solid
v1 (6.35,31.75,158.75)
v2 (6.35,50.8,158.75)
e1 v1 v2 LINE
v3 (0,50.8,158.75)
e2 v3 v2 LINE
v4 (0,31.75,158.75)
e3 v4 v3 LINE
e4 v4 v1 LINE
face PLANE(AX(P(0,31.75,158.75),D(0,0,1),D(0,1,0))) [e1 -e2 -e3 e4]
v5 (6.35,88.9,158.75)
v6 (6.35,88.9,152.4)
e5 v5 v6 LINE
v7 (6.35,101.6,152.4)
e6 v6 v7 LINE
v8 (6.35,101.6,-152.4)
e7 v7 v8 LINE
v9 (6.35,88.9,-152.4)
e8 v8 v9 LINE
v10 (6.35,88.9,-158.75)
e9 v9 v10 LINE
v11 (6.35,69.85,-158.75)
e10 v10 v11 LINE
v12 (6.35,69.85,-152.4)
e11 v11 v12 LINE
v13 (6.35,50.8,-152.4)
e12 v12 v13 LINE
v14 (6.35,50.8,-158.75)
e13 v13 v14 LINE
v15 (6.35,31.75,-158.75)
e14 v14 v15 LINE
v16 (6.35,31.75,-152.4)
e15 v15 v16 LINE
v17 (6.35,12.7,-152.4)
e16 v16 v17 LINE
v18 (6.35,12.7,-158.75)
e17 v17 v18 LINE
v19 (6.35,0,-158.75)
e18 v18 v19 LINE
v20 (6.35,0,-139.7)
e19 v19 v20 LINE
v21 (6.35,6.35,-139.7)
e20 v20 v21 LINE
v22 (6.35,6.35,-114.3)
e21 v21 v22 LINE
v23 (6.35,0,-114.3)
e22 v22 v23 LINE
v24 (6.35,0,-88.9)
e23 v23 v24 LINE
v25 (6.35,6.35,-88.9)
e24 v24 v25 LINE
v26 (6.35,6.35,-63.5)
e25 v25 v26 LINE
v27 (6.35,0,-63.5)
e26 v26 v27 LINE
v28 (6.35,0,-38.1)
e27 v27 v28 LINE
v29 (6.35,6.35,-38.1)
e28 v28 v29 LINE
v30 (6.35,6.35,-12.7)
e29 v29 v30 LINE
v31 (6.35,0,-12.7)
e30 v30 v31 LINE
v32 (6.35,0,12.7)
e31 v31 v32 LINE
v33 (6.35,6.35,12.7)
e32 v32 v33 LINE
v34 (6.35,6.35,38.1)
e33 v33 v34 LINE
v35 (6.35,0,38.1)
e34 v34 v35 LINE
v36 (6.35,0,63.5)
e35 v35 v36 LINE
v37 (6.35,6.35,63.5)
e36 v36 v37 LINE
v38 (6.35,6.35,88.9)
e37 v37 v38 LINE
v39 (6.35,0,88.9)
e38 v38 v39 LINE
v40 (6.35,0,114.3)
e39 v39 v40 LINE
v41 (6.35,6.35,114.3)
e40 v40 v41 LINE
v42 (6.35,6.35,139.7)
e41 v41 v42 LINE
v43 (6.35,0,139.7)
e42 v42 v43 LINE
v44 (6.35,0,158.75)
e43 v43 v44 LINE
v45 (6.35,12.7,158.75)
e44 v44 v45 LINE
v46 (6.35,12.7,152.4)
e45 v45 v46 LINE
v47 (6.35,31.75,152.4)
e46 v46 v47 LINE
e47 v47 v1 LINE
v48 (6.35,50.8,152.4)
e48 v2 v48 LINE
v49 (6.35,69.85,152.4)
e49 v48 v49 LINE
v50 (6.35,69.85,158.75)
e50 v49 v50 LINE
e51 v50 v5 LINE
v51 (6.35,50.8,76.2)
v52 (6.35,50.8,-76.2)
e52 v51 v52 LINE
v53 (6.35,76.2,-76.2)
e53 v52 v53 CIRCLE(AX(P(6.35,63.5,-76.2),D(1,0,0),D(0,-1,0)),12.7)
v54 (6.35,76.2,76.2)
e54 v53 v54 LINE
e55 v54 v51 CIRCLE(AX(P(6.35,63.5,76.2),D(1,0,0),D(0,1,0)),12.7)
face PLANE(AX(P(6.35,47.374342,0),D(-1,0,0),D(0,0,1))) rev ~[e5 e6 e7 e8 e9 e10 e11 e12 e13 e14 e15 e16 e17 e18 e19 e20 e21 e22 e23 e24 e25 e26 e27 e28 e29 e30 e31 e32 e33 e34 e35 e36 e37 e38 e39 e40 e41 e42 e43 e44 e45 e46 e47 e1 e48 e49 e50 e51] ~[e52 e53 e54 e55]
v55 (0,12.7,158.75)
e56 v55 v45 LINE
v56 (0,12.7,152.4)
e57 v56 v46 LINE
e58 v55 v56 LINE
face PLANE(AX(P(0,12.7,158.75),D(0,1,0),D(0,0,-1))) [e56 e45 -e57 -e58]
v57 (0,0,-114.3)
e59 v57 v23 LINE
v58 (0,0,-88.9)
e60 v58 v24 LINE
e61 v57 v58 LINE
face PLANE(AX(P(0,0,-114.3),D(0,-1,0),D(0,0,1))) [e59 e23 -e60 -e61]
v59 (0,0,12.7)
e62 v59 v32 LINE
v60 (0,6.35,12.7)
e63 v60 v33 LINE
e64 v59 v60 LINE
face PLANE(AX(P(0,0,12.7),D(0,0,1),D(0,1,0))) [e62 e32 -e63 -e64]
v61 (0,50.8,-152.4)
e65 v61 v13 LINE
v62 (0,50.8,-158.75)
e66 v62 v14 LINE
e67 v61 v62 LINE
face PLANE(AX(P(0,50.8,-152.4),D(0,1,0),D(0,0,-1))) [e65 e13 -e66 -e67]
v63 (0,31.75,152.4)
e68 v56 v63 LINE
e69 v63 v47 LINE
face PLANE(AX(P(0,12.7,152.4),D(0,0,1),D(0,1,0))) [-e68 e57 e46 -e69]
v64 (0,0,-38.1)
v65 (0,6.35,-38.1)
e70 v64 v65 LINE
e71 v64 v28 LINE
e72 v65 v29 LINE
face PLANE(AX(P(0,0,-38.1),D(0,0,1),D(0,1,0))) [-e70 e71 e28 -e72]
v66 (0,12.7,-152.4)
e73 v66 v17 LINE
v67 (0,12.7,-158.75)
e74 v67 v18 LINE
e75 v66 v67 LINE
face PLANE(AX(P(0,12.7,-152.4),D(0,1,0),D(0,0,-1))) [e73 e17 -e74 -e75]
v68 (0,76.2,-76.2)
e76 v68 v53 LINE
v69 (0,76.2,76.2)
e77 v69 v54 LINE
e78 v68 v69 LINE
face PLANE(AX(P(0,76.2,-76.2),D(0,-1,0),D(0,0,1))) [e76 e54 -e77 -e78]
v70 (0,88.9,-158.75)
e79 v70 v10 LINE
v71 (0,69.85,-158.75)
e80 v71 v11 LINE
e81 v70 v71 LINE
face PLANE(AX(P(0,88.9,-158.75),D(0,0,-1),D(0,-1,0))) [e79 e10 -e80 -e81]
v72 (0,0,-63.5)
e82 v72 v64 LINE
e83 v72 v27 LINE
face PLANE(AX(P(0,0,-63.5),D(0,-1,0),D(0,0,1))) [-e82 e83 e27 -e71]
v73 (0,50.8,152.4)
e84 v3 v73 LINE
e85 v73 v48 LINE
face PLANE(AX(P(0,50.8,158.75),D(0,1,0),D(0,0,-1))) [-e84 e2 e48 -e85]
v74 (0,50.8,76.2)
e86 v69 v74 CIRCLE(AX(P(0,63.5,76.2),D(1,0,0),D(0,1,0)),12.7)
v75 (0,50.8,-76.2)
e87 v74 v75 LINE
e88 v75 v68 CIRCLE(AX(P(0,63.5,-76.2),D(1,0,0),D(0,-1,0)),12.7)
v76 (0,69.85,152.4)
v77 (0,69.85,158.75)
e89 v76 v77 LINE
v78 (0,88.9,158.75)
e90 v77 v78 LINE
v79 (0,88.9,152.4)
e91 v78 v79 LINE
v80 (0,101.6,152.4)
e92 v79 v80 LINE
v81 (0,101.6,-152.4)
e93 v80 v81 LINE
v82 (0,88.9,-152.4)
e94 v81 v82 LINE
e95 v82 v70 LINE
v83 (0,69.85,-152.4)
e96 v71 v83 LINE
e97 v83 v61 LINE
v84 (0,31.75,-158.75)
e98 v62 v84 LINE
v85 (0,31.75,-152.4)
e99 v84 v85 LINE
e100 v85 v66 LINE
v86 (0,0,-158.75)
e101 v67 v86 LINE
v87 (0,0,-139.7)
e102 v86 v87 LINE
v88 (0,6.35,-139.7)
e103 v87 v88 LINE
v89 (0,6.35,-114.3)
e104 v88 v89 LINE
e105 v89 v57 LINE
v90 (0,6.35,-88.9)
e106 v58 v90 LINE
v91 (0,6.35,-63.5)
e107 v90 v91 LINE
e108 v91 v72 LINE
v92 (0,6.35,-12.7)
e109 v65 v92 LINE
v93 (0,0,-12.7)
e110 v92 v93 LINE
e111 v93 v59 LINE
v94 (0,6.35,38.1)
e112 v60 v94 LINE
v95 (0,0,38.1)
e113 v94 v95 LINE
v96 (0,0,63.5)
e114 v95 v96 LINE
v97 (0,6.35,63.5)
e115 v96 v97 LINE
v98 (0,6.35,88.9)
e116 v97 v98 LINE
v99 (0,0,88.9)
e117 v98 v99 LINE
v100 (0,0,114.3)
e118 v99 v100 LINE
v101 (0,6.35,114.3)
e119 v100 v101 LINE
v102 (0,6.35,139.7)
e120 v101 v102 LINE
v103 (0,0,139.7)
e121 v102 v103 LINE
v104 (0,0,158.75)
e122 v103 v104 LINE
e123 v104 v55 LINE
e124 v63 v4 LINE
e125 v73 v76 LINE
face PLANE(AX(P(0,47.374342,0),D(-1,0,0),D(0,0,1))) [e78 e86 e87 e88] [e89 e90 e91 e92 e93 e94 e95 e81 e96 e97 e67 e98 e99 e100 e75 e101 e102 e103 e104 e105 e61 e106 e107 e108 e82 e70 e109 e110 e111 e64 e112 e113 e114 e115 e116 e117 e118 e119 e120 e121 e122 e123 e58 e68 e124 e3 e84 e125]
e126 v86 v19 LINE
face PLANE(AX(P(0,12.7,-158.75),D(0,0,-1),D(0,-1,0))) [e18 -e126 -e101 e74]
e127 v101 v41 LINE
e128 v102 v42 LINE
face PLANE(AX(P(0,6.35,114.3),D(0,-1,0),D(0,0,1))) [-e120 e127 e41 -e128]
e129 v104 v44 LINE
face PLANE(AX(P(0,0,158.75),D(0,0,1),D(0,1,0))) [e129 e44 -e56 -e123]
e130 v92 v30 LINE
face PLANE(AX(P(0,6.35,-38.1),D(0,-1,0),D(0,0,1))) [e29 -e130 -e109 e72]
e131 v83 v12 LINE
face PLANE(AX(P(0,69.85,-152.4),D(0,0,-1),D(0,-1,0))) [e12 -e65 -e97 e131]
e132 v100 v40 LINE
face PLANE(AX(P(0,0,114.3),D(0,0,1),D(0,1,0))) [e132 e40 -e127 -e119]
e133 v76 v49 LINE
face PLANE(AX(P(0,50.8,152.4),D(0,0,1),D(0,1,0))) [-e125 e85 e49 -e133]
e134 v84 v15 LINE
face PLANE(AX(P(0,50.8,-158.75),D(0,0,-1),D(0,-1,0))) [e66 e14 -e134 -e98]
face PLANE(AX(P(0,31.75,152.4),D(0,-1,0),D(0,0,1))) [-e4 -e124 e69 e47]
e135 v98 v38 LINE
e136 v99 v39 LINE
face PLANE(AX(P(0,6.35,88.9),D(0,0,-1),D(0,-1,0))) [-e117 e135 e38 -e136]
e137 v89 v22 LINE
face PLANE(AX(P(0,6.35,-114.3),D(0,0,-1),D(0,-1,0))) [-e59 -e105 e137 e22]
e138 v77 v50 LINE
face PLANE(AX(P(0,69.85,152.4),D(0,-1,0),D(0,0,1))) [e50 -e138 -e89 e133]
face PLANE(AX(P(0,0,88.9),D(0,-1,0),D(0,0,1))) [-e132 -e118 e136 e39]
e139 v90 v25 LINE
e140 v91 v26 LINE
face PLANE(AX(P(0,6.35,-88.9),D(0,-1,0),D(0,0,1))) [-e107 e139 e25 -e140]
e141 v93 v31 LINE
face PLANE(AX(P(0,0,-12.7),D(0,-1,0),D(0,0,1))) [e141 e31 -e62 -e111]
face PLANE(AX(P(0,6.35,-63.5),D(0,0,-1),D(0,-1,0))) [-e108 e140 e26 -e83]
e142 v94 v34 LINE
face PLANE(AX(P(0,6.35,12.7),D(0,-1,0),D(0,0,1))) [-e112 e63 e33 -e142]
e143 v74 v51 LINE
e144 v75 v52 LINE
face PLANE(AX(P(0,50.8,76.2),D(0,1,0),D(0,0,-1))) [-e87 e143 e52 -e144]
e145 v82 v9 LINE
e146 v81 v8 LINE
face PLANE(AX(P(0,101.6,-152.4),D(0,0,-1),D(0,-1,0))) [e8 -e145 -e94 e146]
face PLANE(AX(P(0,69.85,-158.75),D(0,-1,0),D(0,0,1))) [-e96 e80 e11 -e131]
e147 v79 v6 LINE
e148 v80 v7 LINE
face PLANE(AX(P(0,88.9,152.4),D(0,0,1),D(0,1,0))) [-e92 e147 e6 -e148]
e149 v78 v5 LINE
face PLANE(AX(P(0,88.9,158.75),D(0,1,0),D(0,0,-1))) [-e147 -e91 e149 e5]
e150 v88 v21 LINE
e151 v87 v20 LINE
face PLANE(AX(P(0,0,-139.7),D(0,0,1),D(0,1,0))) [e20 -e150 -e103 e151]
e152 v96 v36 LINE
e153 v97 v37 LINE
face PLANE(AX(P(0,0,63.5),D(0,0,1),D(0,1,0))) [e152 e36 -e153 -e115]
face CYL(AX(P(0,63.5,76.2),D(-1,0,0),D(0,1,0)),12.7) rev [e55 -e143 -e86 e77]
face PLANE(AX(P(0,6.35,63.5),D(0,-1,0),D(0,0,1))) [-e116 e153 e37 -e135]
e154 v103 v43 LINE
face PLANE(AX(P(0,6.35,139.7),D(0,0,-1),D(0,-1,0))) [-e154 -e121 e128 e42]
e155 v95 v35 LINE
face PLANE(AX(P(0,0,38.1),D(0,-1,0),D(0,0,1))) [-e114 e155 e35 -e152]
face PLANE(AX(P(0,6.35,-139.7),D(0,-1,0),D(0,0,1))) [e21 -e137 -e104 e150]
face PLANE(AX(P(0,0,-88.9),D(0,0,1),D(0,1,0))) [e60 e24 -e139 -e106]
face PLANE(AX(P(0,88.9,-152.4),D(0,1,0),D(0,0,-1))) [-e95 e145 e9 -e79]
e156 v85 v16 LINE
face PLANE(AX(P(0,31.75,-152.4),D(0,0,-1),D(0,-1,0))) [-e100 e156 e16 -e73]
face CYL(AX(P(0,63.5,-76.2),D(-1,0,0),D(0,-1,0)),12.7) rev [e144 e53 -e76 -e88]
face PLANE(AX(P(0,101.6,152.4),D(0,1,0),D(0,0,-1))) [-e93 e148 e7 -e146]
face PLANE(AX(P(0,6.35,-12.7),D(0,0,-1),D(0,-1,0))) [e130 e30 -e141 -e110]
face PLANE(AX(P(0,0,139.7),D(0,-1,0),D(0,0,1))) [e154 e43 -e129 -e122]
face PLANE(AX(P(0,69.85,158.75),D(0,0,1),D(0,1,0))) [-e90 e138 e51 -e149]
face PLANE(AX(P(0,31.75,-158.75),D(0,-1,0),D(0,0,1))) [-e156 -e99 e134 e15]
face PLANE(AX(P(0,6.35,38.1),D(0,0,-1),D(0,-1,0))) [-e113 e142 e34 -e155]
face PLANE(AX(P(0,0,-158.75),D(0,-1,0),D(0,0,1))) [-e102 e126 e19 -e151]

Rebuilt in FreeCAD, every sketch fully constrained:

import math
import FreeCAD as App
import Part
import Sketcher

V = App.Vector
Q = App.Units.Quantity


def add_polygon(sketch, points):
    """Adds a closed chain of lines whose ends are joined by coincident constraints."""
    first, n = sketch.GeometryCount, len(points)
    for a, b in zip(points, points[1:] + points[:1]):
        sketch.addGeometry(Part.LineSegment(App.Vector(*a, 0), App.Vector(*b, 0)), False)
    for i in range(n):
        sketch.addConstraint(Sketcher.Constraint("Coincident", first + i, 2, first + (i + 1) % n, 1))

doc = App.newDocument("Part")
body = doc.addObject("PartDesign::Body", "Body")

sketch1 = body.newObject("Sketcher::SketchObject", "Sketch")
sketch1.AttachmentSupport = (doc.getObject("YZ_Plane"), [""])
sketch1.MapMode = "FlatFace"
add_polygon(sketch1, [(102, -152), (102, 152), (89, 152), (89, 159), (70, 159), (70, 152), (51, 152), (51, 159), (32, 159), (32, 152), (13, 152), (13, 159), (0, 159), (0, 140), (6, 140), (6, 114), (0, 114), (0, 89), (6, 89), (6, 64), (0, 64), (0, 38), (6, 38), (6, 13), (0, 13), (0, -13), (6, -13), (6, -38), (0, -38), (0, -64), (6, -64), (6, -89), (0, -89), (0, -114), (6, -114), (6, -140), (0, -140), (0, -159), (13, -159), (13, -152), (32, -152), (32, -159), (51, -159), (51, -152), (70, -152), (70, -159), (89, -159), (89, -152)])
sketch1.addGeometry(Part.ArcOfCircle(Part.Circle(V(64, 76, 0), V(0, 0, 1), 13), math.radians(0), math.radians(180)), False)
sketch1.addGeometry(Part.LineSegment(V(76, 76, 0), V(76, -76, 0)), False)
sketch1.addGeometry(Part.ArcOfCircle(Part.Circle(V(64, -76, 0), V(0, 0, 1), 13), math.radians(180), math.radians(360)), False)
sketch1.addGeometry(Part.LineSegment(V(51, -76, 0), V(51, 76, 0)), False)
sketch1.addConstraint([
    Sketcher.Constraint("Tangent", 48, 1, 49, 1),
    Sketcher.Constraint("Tangent", 49, 2, 50, 2),
    Sketcher.Constraint("Tangent", 50, 1, 51, 1),
    Sketcher.Constraint("Tangent", 51, 2, 48, 2),
    Sketcher.Constraint("Vertical", 0),
    Sketcher.Constraint("Horizontal", 1),
    Sketcher.Constraint("Vertical", 2),
    Sketcher.Constraint("Horizontal", 3),
    Sketcher.Constraint("Vertical", 4),
    Sketcher.Constraint("Horizontal", 5),
    Sketcher.Constraint("Vertical", 6),
    Sketcher.Constraint("Horizontal", 7),
    Sketcher.Constraint("Vertical", 8),
    Sketcher.Constraint("Horizontal", 9),
    Sketcher.Constraint("Vertical", 10),
    Sketcher.Constraint("Horizontal", 11),
    Sketcher.Constraint("Vertical", 12),
    Sketcher.Constraint("Horizontal", 13),
    Sketcher.Constraint("Vertical", 14),
    Sketcher.Constraint("Horizontal", 15),
    Sketcher.Constraint("Vertical", 16),
    Sketcher.Constraint("Horizontal", 17),
    Sketcher.Constraint("Vertical", 18),
    Sketcher.Constraint("Horizontal", 19),
    Sketcher.Constraint("Vertical", 20),
    Sketcher.Constraint("Horizontal", 21),
    Sketcher.Constraint("Vertical", 22),
    Sketcher.Constraint("Horizontal", 23),
    Sketcher.Constraint("Vertical", 24),
    Sketcher.Constraint("Horizontal", 25),
    Sketcher.Constraint("Vertical", 26),
    Sketcher.Constraint("Horizontal", 27),
    Sketcher.Constraint("Vertical", 28),
    Sketcher.Constraint("Horizontal", 29),
    Sketcher.Constraint("Vertical", 30),
    Sketcher.Constraint("Horizontal", 31),
    Sketcher.Constraint("Vertical", 32),
    Sketcher.Constraint("Horizontal", 33),
    Sketcher.Constraint("Vertical", 34),
    Sketcher.Constraint("Horizontal", 35),
    Sketcher.Constraint("Vertical", 36),
    Sketcher.Constraint("Horizontal", 37),
    Sketcher.Constraint("Vertical", 38),
    Sketcher.Constraint("Horizontal", 39),
    Sketcher.Constraint("Vertical", 40),
    Sketcher.Constraint("Horizontal", 41),
    Sketcher.Constraint("Vertical", 42),
    Sketcher.Constraint("Horizontal", 43),
    Sketcher.Constraint("Vertical", 44),
    Sketcher.Constraint("Horizontal", 45),
    Sketcher.Constraint("Vertical", 46),
    Sketcher.Constraint("Horizontal", 47),
    Sketcher.Constraint("Vertical", 49),
    Sketcher.Constraint("Vertical", 51),
    Sketcher.Constraint("Symmetric", 23, 2, 24, 2, -1, 1),
    Sketcher.Constraint("Symmetric", 20, 2, 27, 2, -1, 1),
    Sketcher.Constraint("Symmetric", 16, 2, 31, 2, -1, 1),
    Sketcher.Constraint("Symmetric", 12, 2, 35, 2, -1, 1),
    Sketcher.Constraint("Symmetric", 19, 2, 28, 2, -1),
    Sketcher.Constraint("Symmetric", 15, 2, 32, 2, -1),
    Sketcher.Constraint("Symmetric", 11, 2, 36, 2, -1),
    Sketcher.Constraint("Symmetric", 9, 2, 38, 2, -1),
    Sketcher.Constraint("Symmetric", 7, 2, 40, 2, -1),
    Sketcher.Constraint("Symmetric", 5, 2, 42, 2, -1),
    Sketcher.Constraint("Symmetric", 3, 2, 44, 2, -1),
    Sketcher.Constraint("Symmetric", 1, 2, 46, 2, -1),
    Sketcher.Constraint("Horizontal", 1, 2, 4, 2),
    Sketcher.Constraint("Horizontal", 3, 2, 6, 2),
    Sketcher.Constraint("Horizontal", 5, 2, 8, 2),
    Sketcher.Constraint("Horizontal", 7, 2, 10, 2),
    Sketcher.Constraint("Vertical", 14, 2, 17, 2),
    Sketcher.Constraint("Vertical", 18, 2, 21, 2),
    Sketcher.Constraint("Vertical", 22, 2, 25, 2),
    Sketcher.Constraint("Vertical", 26, 2, 29, 2),
    Sketcher.Constraint("Vertical", 30, 2, 33, 2),
    Sketcher.Constraint("Vertical", 42, 2, 50, 1),
    Sketcher.Constraint("Equal", 3, 5),
    Sketcher.Constraint("Equal", 5, 7),
    Sketcher.Constraint("Equal", 7, 9),
    Sketcher.Constraint("Equal", 1, 11),
    Sketcher.Constraint("Equal", 35, 2),
    Sketcher.Constraint("Equal", 45, 12),
    Sketcher.Constraint("Equal", 14, 16),
    Sketcher.Constraint("Equal", 16, 18),
    Sketcher.Constraint("Equal", 18, 20),
    Sketcher.Constraint("Equal", 20, 22),
    Sketcher.Constraint("Equal", 22, 24),
    Sketcher.Constraint("Radius", 48, Q("0.5 in")),
    Sketcher.Constraint("DistanceY", 0, 1, 0, 2, Q("12 in")),
    Sketcher.Constraint("DistanceY", 14, 2, 14, 1, Q("1 in")),
    Sketcher.Constraint("DistanceY", 49, 2, 49, 1, Q("6 in")),
    Sketcher.Constraint("DistanceX", 1, 2, 1, 1, Q("0.5 in")),
    Sketcher.Constraint("DistanceY", -1, 1, 48, 3, Q("3 in")),
    Sketcher.Constraint("DistanceX", -1, 1, 0, 2, Q("4 in")),
])
pad1 = body.newObject("PartDesign::Pad", "Pad")
pad1.Profile = sketch1
pad1.Length = Q("0.25 in")

doc.recompute()
